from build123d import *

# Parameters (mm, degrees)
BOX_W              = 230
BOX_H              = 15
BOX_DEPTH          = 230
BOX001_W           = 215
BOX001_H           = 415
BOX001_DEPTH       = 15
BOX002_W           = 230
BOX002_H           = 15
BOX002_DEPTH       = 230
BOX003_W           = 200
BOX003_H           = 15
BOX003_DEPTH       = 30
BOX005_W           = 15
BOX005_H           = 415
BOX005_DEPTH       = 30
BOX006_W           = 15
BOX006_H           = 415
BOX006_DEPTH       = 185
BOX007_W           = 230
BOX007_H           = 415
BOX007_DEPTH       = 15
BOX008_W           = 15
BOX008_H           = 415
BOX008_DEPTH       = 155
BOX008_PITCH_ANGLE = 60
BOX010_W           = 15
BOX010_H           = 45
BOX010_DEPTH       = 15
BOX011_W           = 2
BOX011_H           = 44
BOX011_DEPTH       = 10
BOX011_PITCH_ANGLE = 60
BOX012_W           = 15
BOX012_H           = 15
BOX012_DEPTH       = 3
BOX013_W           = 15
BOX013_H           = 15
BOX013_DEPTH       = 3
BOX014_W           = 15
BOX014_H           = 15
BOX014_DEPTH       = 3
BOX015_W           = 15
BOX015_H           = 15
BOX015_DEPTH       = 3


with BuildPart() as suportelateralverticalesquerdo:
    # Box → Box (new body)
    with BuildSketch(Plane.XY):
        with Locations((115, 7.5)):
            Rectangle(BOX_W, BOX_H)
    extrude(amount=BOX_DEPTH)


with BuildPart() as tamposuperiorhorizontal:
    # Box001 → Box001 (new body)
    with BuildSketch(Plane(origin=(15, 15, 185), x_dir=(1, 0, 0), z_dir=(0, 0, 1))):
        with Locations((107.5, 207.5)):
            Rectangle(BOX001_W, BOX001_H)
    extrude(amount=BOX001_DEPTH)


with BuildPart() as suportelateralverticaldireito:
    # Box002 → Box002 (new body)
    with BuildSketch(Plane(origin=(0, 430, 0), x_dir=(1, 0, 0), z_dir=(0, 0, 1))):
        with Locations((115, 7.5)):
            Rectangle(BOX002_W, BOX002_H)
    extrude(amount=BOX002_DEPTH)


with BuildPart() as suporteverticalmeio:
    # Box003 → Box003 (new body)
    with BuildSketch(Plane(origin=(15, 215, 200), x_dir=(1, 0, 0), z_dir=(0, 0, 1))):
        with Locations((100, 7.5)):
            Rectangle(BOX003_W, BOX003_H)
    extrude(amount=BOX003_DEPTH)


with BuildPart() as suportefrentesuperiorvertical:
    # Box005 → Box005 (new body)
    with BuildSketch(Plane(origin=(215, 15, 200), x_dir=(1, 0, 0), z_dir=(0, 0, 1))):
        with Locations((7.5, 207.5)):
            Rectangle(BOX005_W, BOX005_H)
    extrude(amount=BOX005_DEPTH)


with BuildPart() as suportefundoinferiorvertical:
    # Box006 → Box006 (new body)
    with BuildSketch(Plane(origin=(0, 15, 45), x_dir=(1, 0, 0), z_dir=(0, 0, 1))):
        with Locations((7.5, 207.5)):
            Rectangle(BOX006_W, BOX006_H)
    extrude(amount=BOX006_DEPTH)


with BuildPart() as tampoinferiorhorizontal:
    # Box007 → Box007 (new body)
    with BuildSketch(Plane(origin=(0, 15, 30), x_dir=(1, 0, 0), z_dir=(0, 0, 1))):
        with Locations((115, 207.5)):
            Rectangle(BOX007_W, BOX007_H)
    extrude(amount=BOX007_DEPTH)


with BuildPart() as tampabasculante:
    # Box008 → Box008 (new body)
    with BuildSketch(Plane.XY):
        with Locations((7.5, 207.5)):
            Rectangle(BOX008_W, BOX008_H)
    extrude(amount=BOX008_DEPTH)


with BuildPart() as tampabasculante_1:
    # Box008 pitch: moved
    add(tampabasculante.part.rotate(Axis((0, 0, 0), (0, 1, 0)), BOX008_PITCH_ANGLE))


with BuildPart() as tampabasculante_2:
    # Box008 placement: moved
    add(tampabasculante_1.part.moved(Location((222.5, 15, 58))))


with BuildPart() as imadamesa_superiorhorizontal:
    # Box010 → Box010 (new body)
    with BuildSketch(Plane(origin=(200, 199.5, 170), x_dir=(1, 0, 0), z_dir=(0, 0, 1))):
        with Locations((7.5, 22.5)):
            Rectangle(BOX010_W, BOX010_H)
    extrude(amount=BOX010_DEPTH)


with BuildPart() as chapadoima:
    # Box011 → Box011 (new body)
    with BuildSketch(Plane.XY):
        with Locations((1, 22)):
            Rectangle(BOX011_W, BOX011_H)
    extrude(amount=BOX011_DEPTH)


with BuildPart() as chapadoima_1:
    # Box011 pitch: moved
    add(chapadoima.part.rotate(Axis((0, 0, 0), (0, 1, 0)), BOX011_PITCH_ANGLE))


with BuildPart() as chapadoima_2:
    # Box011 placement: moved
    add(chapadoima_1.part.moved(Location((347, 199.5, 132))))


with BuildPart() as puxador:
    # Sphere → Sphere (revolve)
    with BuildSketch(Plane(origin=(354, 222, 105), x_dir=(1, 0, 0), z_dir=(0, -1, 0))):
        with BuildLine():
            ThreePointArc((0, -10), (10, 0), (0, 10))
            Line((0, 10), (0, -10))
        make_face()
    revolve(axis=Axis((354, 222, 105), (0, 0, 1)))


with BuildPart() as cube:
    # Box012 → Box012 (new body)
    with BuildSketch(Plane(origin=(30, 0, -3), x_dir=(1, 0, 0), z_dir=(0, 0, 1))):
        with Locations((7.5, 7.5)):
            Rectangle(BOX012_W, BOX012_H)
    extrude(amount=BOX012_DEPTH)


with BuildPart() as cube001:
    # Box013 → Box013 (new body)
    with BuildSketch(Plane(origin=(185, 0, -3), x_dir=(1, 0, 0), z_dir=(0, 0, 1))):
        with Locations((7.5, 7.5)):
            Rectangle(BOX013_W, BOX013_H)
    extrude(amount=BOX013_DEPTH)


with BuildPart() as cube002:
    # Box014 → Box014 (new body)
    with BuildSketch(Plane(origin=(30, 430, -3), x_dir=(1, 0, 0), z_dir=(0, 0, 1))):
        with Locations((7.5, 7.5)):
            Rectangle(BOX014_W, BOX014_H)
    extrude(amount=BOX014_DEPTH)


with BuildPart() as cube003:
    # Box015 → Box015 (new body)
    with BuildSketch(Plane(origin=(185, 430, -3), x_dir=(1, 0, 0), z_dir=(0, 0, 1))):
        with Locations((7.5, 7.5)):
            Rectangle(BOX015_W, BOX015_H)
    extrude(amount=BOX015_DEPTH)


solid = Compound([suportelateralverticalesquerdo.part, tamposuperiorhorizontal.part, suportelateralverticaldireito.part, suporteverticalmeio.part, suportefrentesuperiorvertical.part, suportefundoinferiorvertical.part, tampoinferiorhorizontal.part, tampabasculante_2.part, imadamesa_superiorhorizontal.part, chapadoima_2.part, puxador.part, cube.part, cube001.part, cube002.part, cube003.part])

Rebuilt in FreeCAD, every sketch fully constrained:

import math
import FreeCAD as App
import Part
import Sketcher


def add_polygon(sketch, points):
    """Adds a closed chain of lines whose ends are joined by coincident constraints."""
    first, n = sketch.GeometryCount, len(points)
    for a, b in zip(points, points[1:] + points[:1]):
        sketch.addGeometry(Part.LineSegment(App.Vector(*a, 0), App.Vector(*b, 0)), False)
    for i in range(n):
        sketch.addConstraint(Sketcher.Constraint("Coincident", first + i, 2, first + (i + 1) % n, 1))

doc = App.newDocument("Part")
body = doc.addObject("PartDesign::Body", "Body")

# Sketch on XY plane
sketch1 = body.newObject("Sketcher::SketchObject", "Sketch")
sketch1.AttachmentSupport = (doc.getObject("XY_Plane"), [""])
sketch1.MapMode = "FlatFace"
add_polygon(sketch1, [(0, 15), (0, 0), (230, 0), (230, 15)])  # lines 0-3
sketch1.addConstraint([
    Sketcher.Constraint("Vertical", 0),
    Sketcher.Constraint("Horizontal", 1),
    Sketcher.Constraint("Vertical", 2),
    Sketcher.Constraint("Horizontal", 3),
    Sketcher.Constraint("Coincident", 0, 2, -1, 1),
    Sketcher.Constraint("DistanceX", 1, 1, 1, 2, 230.0),
    Sketcher.Constraint("DistanceY", 0, 2, 0, 1, 15.0),
])
pad1 = body.newObject("PartDesign::Pad", "Pad")
pad1.Profile = sketch1
pad1.Length = 230
body2 = doc.addObject("PartDesign::Body", "Body001")

# Sketch on XY plane
sketch2 = body2.newObject("Sketcher::SketchObject", "Sketch001")
sketch2.AttachmentSupport = (doc.getObject("XY_Plane001"), [""])
sketch2.MapMode = "FlatFace"
sketch2.AttachmentOffset = App.Placement(App.Vector(0, 0, 185), App.Rotation())
add_polygon(sketch2, [(15, 430), (15, 15), (230, 15), (230, 430)])  # lines 0-3
sketch2.addConstraint([
    Sketcher.Constraint("Vertical", 0),
    Sketcher.Constraint("Horizontal", 1),
    Sketcher.Constraint("Vertical", 2),
    Sketcher.Constraint("Horizontal", 3),
    Sketcher.Constraint("DistanceX", 1, 1, 1, 2, 215.0),
    Sketcher.Constraint("DistanceY", 0, 2, 0, 1, 415.0),
    Sketcher.Constraint("DistanceX", -1, 1, 0, 2, 15.0),
    Sketcher.Constraint("DistanceY", -1, 1, 0, 2, 15.0),
])
pad2 = body2.newObject("PartDesign::Pad", "Pad001")
pad2.Profile = sketch2
pad2.Length = 15
body3 = doc.addObject("PartDesign::Body", "Body002")

# Sketch on XY plane
sketch3 = body3.newObject("Sketcher::SketchObject", "Sketch002")
sketch3.AttachmentSupport = (doc.getObject("XY_Plane002"), [""])
sketch3.MapMode = "FlatFace"
add_polygon(sketch3, [(0, 445), (0, 430), (230, 430), (230, 445)])  # lines 0-3
sketch3.addConstraint([
    Sketcher.Constraint("Vertical", 0),
    Sketcher.Constraint("Horizontal", 1),
    Sketcher.Constraint("Vertical", 2),
    Sketcher.Constraint("Horizontal", 3),
    Sketcher.Constraint("PointOnObject", 0, 2, -2),
    Sketcher.Constraint("DistanceX", 1, 1, 1, 2, 230.0),
    Sketcher.Constraint("DistanceY", 0, 2, 0, 1, 15.0),
    Sketcher.Constraint("DistanceY", -1, 1, 0, 2, 430.0),
])
pad3 = body3.newObject("PartDesign::Pad", "Pad002")
pad3.Profile = sketch3
pad3.Length = 230
body4 = doc.addObject("PartDesign::Body", "Body003")

# Sketch on XY plane
sketch4 = body4.newObject("Sketcher::SketchObject", "Sketch003")
sketch4.AttachmentSupport = (doc.getObject("XY_Plane003"), [""])
sketch4.MapMode = "FlatFace"
sketch4.AttachmentOffset = App.Placement(App.Vector(0, 0, 200), App.Rotation())
add_polygon(sketch4, [(15, 230), (15, 215), (215, 215), (215, 230)])  # lines 0-3
sketch4.addConstraint([
    Sketcher.Constraint("Vertical", 0),
    Sketcher.Constraint("Horizontal", 1),
    Sketcher.Constraint("Vertical", 2),
    Sketcher.Constraint("Horizontal", 3),
    Sketcher.Constraint("DistanceX", 1, 1, 1, 2, 200.0),
    Sketcher.Constraint("DistanceY", 0, 2, 0, 1, 15.0),
    Sketcher.Constraint("DistanceX", -1, 1, 0, 2, 15.0),
    Sketcher.Constraint("DistanceY", -1, 1, 0, 2, 215.0),
])
pad4 = body4.newObject("PartDesign::Pad", "Pad003")
pad4.Profile = sketch4
pad4.Length = 30
body5 = doc.addObject("PartDesign::Body", "Body004")

# Sketch on XY plane
sketch5 = body5.newObject("Sketcher::SketchObject", "Sketch004")
sketch5.AttachmentSupport = (doc.getObject("XY_Plane004"), [""])
sketch5.MapMode = "FlatFace"
sketch5.AttachmentOffset = App.Placement(App.Vector(0, 0, 200), App.Rotation())
add_polygon(sketch5, [(215, 430), (215, 15), (230, 15), (230, 430)])  # lines 0-3
sketch5.addConstraint([
    Sketcher.Constraint("Vertical", 0),
    Sketcher.Constraint("Horizontal", 1),
    Sketcher.Constraint("Vertical", 2),
    Sketcher.Constraint("Horizontal", 3),
    Sketcher.Constraint("DistanceX", 1, 1, 1, 2, 15.0),
    Sketcher.Constraint("DistanceY", 0, 2, 0, 1, 415.0),
    Sketcher.Constraint("DistanceX", -1, 1, 0, 2, 215.0),
    Sketcher.Constraint("DistanceY", -1, 1, 0, 2, 15.0),
])
pad5 = body5.newObject("PartDesign::Pad", "Pad004")
pad5.Profile = sketch5
pad5.Length = 30
body6 = doc.addObject("PartDesign::Body", "Body005")

# Sketch on XY plane
sketch6 = body6.newObject("Sketcher::SketchObject", "Sketch005")
sketch6.AttachmentSupport = (doc.getObject("XY_Plane005"), [""])
sketch6.MapMode = "FlatFace"
sketch6.AttachmentOffset = App.Placement(App.Vector(0, 0, 45), App.Rotation())
add_polygon(sketch6, [(0, 430), (0, 15), (15, 15), (15, 430)])  # lines 0-3
sketch6.addConstraint([
    Sketcher.Constraint("Vertical", 0),
    Sketcher.Constraint("Horizontal", 1),
    Sketcher.Constraint("Vertical", 2),
    Sketcher.Constraint("Horizontal", 3),
    Sketcher.Constraint("PointOnObject", 0, 2, -2),
    Sketcher.Constraint("DistanceX", 1, 1, 1, 2, 15.0),
    Sketcher.Constraint("DistanceY", 0, 2, 0, 1, 415.0),
    Sketcher.Constraint("DistanceY", -1, 1, 0, 2, 15.0),
])
pad6 = body6.newObject("PartDesign::Pad", "Pad005")
pad6.Profile = sketch6
pad6.Length = 185
body7 = doc.addObject("PartDesign::Body", "Body006")

# Sketch on XY plane
sketch7 = body7.newObject("Sketcher::SketchObject", "Sketch006")
sketch7.AttachmentSupport = (doc.getObject("XY_Plane006"), [""])
sketch7.MapMode = "FlatFace"
sketch7.AttachmentOffset = App.Placement(App.Vector(0, 0, 30), App.Rotation())
add_polygon(sketch7, [(0, 430), (0, 15), (230, 15), (230, 430)])  # lines 0-3
sketch7.addConstraint([
    Sketcher.Constraint("Vertical", 0),
    Sketcher.Constraint("Horizontal", 1),
    Sketcher.Constraint("Vertical", 2),
    Sketcher.Constraint("Horizontal", 3),
    Sketcher.Constraint("PointOnObject", 0, 2, -2),
    Sketcher.Constraint("DistanceX", 1, 1, 1, 2, 230.0),
    Sketcher.Constraint("DistanceY", 0, 2, 0, 1, 415.0),
    Sketcher.Constraint("DistanceY", -1, 1, 0, 2, 15.0),
])
pad7 = body7.newObject("PartDesign::Pad", "Pad006")
pad7.Profile = sketch7
pad7.Length = 15
body8 = doc.addObject("PartDesign::Body", "Body007")

# Sketch on XY plane
sketch8 = body8.newObject("Sketcher::SketchObject", "Sketch007")
sketch8.AttachmentSupport = (doc.getObject("XY_Plane007"), [""])
sketch8.MapMode = "FlatFace"
add_polygon(sketch8, [(0, 415), (0, 0), (15, 0), (15, 415)])  # lines 0-3
sketch8.addConstraint([
    Sketcher.Constraint("Vertical", 0),
    Sketcher.Constraint("Horizontal", 1),
    Sketcher.Constraint("Vertical", 2),
    Sketcher.Constraint("Horizontal", 3),
    Sketcher.Constraint("Coincident", 0, 2, -1, 1),
    Sketcher.Constraint("DistanceX", 1, 1, 1, 2, 15.0),
    Sketcher.Constraint("DistanceY", 0, 2, 0, 1, 415.0),
])
pad8 = body8.newObject("PartDesign::Pad", "Pad007")
pad8.Profile = sketch8
pad8.Length = 155
body9 = doc.addObject("PartDesign::Body", "Body008")
doc.recompute()

body8.Placement = App.Placement(App.Vector(0, 0, 0), App.Rotation(App.Vector(0, 1, 0), 60))
boolean = body9.newObject("PartDesign::Boolean", "Boolean")
boolean.Type = "Fuse"
boolean.addObjects([body8])
body10 = doc.addObject("PartDesign::Body", "Body009")
doc.recompute()

body9.Placement = App.Placement(App.Vector(222.5, 15, 58), App.Rotation(App.Vector(0, 0, 1), 0))
boolean2 = body10.newObject("PartDesign::Boolean", "Boolean001")
boolean2.Type = "Fuse"
boolean2.addObjects([body9])
body11 = doc.addObject("PartDesign::Body", "Body010")

# Sketch on XY plane
sketch9 = body11.newObject("Sketcher::SketchObject", "Sketch008")
sketch9.AttachmentSupport = (doc.getObject("XY_Plane010"), [""])
sketch9.MapMode = "FlatFace"
sketch9.AttachmentOffset = App.Placement(App.Vector(0, 0, 170), App.Rotation())
add_polygon(sketch9, [(200, 244), (200, 200), (215, 200), (215, 244)])  # lines 0-3
sketch9.addConstraint([
    Sketcher.Constraint("Vertical", 0),
    Sketcher.Constraint("Horizontal", 1),
    Sketcher.Constraint("Vertical", 2),
    Sketcher.Constraint("Horizontal", 3),
    Sketcher.Constraint("DistanceX", 1, 1, 1, 2, 15.0),
    Sketcher.Constraint("DistanceY", 0, 2, 0, 1, 45.0),
    Sketcher.Constraint("DistanceX", -1, 1, 0, 2, 200.0),
    Sketcher.Constraint("DistanceY", -1, 1, 0, 2, 199.5),
])
pad9 = body11.newObject("PartDesign::Pad", "Pad008")
pad9.Profile = sketch9
pad9.Length = 15
body12 = doc.addObject("PartDesign::Body", "Body011")

# Sketch on XY plane
sketch10 = body12.newObject("Sketcher::SketchObject", "Sketch009")
sketch10.AttachmentSupport = (doc.getObject("XY_Plane011"), [""])
sketch10.MapMode = "FlatFace"
add_polygon(sketch10, [(0, 44), (0, 0), (2, 0), (2, 44)])  # lines 0-3
sketch10.addConstraint([
    Sketcher.Constraint("Vertical", 0),
    Sketcher.Constraint("Horizontal", 1),
    Sketcher.Constraint("Vertical", 2),
    Sketcher.Constraint("Horizontal", 3),
    Sketcher.Constraint("Coincident", 0, 2, -1, 1),
    Sketcher.Constraint("DistanceX", 1, 1, 1, 2, 2.0),
    Sketcher.Constraint("DistanceY", 0, 2, 0, 1, 44.0),
])
pad10 = body12.newObject("PartDesign::Pad", "Pad009")
pad10.Profile = sketch10
pad10.Length = 10
body13 = doc.addObject("PartDesign::Body", "Body012")
doc.recompute()

body12.Placement = App.Placement(App.Vector(0, 0, 0), App.Rotation(App.Vector(0, 1, 0), 60))
boolean3 = body13.newObject("PartDesign::Boolean", "Boolean002")
boolean3.Type = "Fuse"
boolean3.addObjects([body12])
body14 = doc.addObject("PartDesign::Body", "Body013")
doc.recompute()

body13.Placement = App.Placement(App.Vector(347, 199.5, 132), App.Rotation(App.Vector(0, 0, 1), 0))
boolean4 = body14.newObject("PartDesign::Boolean", "Boolean003")
boolean4.Type = "Fuse"
boolean4.addObjects([body13])
body15 = doc.addObject("PartDesign::Body", "Body014")

# Sketch on XZ plane
sketch11 = body15.newObject("Sketcher::SketchObject", "Sketch010")
sketch11.AttachmentSupport = (doc.getObject("XZ_Plane014"), [""])
sketch11.MapMode = "FlatFace"
sketch11.AttachmentOffset = App.Placement(App.Vector(0, 0, -222), App.Rotation())
sketch11.addGeometry([
    Part.ArcOfCircle(Part.Circle(App.Vector(354, 105, 0), App.Vector(0, 0, 1), 10), math.radians(-90), math.radians(90)),
    Part.LineSegment(App.Vector(354, 115, 0), App.Vector(354, 95, 0)),
], False)
sketch11.addGeometry(Part.LineSegment(App.Vector(354, 95, 0), App.Vector(354, 115, 0)), True)  # axis
sketch11.addConstraint([
    Sketcher.Constraint("Coincident", 0, 1, 1, 2),
    Sketcher.Constraint("Coincident", 1, 1, 0, 2),
    Sketcher.Constraint("Vertical", 1),
    Sketcher.Constraint("Vertical", 2),
    Sketcher.Constraint("Coincident", 2, 1, 0, 1),
    Sketcher.Constraint("Equal", 1, 2),
    Sketcher.Constraint("Radius", 0, 10.0),
    Sketcher.Constraint("DistanceX", -1, 1, 0, 3, 354.0),
    Sketcher.Constraint("DistanceY", -1, 1, 0, 3, 105.0),
    Sketcher.Constraint("DistanceX", -1, 1, 0, 1, 354.0),
])
revolution = body15.newObject("PartDesign::Revolution", "Revolution")
revolution.Profile = sketch11
revolution.ReferenceAxis = (sketch11, ["Axis0"])
revolution.Angle = 360
body16 = doc.addObject("PartDesign::Body", "Body015")

# Sketch on XY plane
sketch12 = body16.newObject("Sketcher::SketchObject", "Sketch011")
sketch12.AttachmentSupport = (doc.getObject("XY_Plane015"), [""])
sketch12.MapMode = "FlatFace"
sketch12.AttachmentOffset = App.Placement(App.Vector(0, 0, -3), App.Rotation())
add_polygon(sketch12, [(30, 15), (30, 0), (45, 0), (45, 15)])  # lines 0-3
sketch12.addConstraint([
    Sketcher.Constraint("Vertical", 0),
    Sketcher.Constraint("Horizontal", 1),
    Sketcher.Constraint("Vertical", 2),
    Sketcher.Constraint("Horizontal", 3),
    Sketcher.Constraint("PointOnObject", 0, 2, -1),
    Sketcher.Constraint("Equal", 3, 0),
    Sketcher.Constraint("DistanceX", 1, 1, 1, 2, 15.0),
    Sketcher.Constraint("DistanceX", -1, 1, 0, 2, 30.0),
])
pad11 = body16.newObject("PartDesign::Pad", "Pad010")
pad11.Profile = sketch12
pad11.Length = 3
body17 = doc.addObject("PartDesign::Body", "Body016")

# Sketch on XY plane
sketch13 = body17.newObject("Sketcher::SketchObject", "Sketch012")
sketch13.AttachmentSupport = (doc.getObject("XY_Plane016"), [""])
sketch13.MapMode = "FlatFace"
sketch13.AttachmentOffset = App.Placement(App.Vector(0, 0, -3), App.Rotation())
add_polygon(sketch13, [(185, 15), (185, 0), (200, 0), (200, 15)])  # lines 0-3
sketch13.addConstraint([
    Sketcher.Constraint("Vertical", 0),
    Sketcher.Constraint("Horizontal", 1),
    Sketcher.Constraint("Vertical", 2),
    Sketcher.Constraint("Horizontal", 3),
    Sketcher.Constraint("PointOnObject", 0, 2, -1),
    Sketcher.Constraint("Equal", 3, 0),
    Sketcher.Constraint("DistanceX", 1, 1, 1, 2, 15.0),
    Sketcher.Constraint("DistanceX", -1, 1, 0, 2, 185.0),
])
pad12 = body17.newObject("PartDesign::Pad", "Pad011")
pad12.Profile = sketch13
pad12.Length = 3
body18 = doc.addObject("PartDesign::Body", "Body017")

# Sketch on XY plane
sketch14 = body18.newObject("Sketcher::SketchObject", "Sketch013")
sketch14.AttachmentSupport = (doc.getObject("XY_Plane017"), [""])
sketch14.MapMode = "FlatFace"
sketch14.AttachmentOffset = App.Placement(App.Vector(0, 0, -3), App.Rotation())
add_polygon(sketch14, [(30, 445), (30, 430), (45, 430), (45, 445)])  # lines 0-3
sketch14.addConstraint([
    Sketcher.Constraint("Vertical", 0),
    Sketcher.Constraint("Horizontal", 1),
    Sketcher.Constraint("Vertical", 2),
    Sketcher.Constraint("Horizontal", 3),
    Sketcher.Constraint("Equal", 3, 0),
    Sketcher.Constraint("DistanceX", 1, 1, 1, 2, 15.0),
    Sketcher.Constraint("DistanceX", -1, 1, 0, 2, 30.0),
    Sketcher.Constraint("DistanceY", -1, 1, 0, 2, 430.0),
])
pad13 = body18.newObject("PartDesign::Pad", "Pad012")
pad13.Profile = sketch14
pad13.Length = 3
body19 = doc.addObject("PartDesign::Body", "Body018")

# Sketch on XY plane
sketch15 = body19.newObject("Sketcher::SketchObject", "Sketch014")
sketch15.AttachmentSupport = (doc.getObject("XY_Plane018"), [""])
sketch15.MapMode = "FlatFace"
sketch15.AttachmentOffset = App.Placement(App.Vector(0, 0, -3), App.Rotation())
add_polygon(sketch15, [(185, 445), (185, 430), (200, 430), (200, 445)])  # lines 0-3
sketch15.addConstraint([
    Sketcher.Constraint("Vertical", 0),
    Sketcher.Constraint("Horizontal", 1),
    Sketcher.Constraint("Vertical", 2),
    Sketcher.Constraint("Horizontal", 3),
    Sketcher.Constraint("Equal", 3, 0),
    Sketcher.Constraint("DistanceX", 1, 1, 1, 2, 15.0),
    Sketcher.Constraint("DistanceX", -1, 1, 0, 2, 185.0),
    Sketcher.Constraint("DistanceY", -1, 1, 0, 2, 430.0),
])
pad14 = body19.newObject("PartDesign::Pad", "Pad013")
pad14.Profile = sketch15
pad14.Length = 3

doc.recompute()
